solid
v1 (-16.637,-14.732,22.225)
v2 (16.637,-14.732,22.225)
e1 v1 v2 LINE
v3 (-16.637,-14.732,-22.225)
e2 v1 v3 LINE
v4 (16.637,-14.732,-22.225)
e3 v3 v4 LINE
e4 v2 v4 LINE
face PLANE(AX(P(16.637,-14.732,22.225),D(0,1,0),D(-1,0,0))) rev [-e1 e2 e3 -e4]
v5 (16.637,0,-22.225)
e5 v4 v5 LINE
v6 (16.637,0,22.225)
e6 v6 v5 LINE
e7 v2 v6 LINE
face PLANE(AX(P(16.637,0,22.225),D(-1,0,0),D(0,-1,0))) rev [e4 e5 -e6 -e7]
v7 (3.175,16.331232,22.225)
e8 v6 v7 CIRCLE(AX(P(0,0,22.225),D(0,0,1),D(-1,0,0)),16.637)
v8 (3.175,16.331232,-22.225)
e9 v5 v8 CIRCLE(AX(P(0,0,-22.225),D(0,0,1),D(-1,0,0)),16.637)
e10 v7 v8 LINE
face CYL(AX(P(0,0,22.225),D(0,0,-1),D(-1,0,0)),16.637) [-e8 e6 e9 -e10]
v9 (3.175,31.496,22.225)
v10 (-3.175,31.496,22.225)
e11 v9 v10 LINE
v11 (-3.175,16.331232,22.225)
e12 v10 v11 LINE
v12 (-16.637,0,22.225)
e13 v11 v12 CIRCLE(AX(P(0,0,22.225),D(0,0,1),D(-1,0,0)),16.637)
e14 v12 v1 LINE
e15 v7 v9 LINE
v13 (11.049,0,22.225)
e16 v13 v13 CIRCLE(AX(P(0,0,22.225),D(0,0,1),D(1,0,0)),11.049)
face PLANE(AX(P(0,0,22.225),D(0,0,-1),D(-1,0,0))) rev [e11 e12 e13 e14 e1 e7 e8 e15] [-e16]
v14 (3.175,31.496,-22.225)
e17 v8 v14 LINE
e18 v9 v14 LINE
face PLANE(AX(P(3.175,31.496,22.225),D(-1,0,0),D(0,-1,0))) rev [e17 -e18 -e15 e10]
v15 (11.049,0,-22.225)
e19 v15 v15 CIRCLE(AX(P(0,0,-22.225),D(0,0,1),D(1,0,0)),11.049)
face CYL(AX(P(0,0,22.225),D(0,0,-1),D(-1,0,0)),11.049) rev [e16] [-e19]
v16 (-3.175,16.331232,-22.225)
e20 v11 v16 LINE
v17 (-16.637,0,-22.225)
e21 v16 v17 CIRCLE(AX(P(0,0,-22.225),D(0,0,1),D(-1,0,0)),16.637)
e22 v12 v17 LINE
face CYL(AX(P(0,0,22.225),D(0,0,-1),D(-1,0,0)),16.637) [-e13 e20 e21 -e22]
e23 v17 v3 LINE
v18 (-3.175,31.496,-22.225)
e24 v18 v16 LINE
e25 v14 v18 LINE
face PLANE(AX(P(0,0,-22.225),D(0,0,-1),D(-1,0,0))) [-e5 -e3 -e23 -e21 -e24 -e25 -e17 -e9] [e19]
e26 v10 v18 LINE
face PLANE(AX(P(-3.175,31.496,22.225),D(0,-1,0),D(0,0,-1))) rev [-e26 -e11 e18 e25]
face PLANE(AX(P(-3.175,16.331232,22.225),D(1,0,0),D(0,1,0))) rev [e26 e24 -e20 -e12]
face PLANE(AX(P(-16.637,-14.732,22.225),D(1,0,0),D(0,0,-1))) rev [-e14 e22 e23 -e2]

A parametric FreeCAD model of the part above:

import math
import FreeCAD as App
import Part
import Sketcher
Q = App.Units.Quantity

doc = App.newDocument("Part")
body = doc.addObject("PartDesign::Body", "Body")

sketch1 = body.newObject("Sketcher::SketchObject", "Sketch")
sketch1.AttachmentSupport = (doc.getObject("XY_Plane"), [""])
sketch1.MapMode = "FlatFace"
sketch1.addGeometry(Part.LineSegment(App.Vector(-17, -15, 0), App.Vector(17, -15, 0)), False)
sketch1.addGeometry(Part.LineSegment(App.Vector(17, -15, 0), App.Vector(17, 0, 0)), False)
sketch1.addGeometry(Part.ArcOfCircle(Part.Circle(App.Vector(0, 0, 0), App.Vector(0, 0, 1), 17), math.radians(0), math.radians(79)), False)
sketch1.addGeometry(Part.LineSegment(App.Vector(3, 16, 0), App.Vector(3, 31, 0)), False)
sketch1.addGeometry(Part.LineSegment(App.Vector(3, 31, 0), App.Vector(-3, 31, 0)), False)
sketch1.addGeometry(Part.LineSegment(App.Vector(-3, 31, 0), App.Vector(-3, 16, 0)), False)
sketch1.addGeometry(Part.ArcOfCircle(Part.Circle(App.Vector(0, 0, 0), App.Vector(0, 0, 1), 17), math.radians(101), math.radians(180)), False)
sketch1.addGeometry(Part.LineSegment(App.Vector(-17, 0, 0), App.Vector(-17, -15, 0)), False)
sketch1.addGeometry(Part.Circle(App.Vector(0, 0, 0), App.Vector(0, 0, 1), 11), False)
sketch1.addConstraint(Sketcher.Constraint("Coincident", 0, 2, 1, 1))
sketch1.addConstraint(Sketcher.Constraint("Tangent", 1, 2, 2, 1))
sketch1.addConstraint(Sketcher.Constraint("Coincident", 2, 2, 3, 1))
sketch1.addConstraint(Sketcher.Constraint("Coincident", 3, 2, 4, 1))
sketch1.addConstraint(Sketcher.Constraint("Coincident", 4, 2, 5, 1))
sketch1.addConstraint(Sketcher.Constraint("Coincident", 5, 2, 6, 1))
sketch1.addConstraint(Sketcher.Constraint("Tangent", 6, 2, 7, 1))
sketch1.addConstraint(Sketcher.Constraint("Coincident", 7, 2, 0, 1))
sketch1.addConstraint(Sketcher.Constraint("Horizontal", 0))
sketch1.addConstraint(Sketcher.Constraint("Vertical", 1))
sketch1.addConstraint(Sketcher.Constraint("Vertical", 3))
sketch1.addConstraint(Sketcher.Constraint("Horizontal", 4))
sketch1.addConstraint(Sketcher.Constraint("Vertical", 5))
sketch1.addConstraint(Sketcher.Constraint("Vertical", 7))
sketch1.addConstraint(Sketcher.Constraint("Coincident", 2, 3, -1, 1))
sketch1.addConstraint(Sketcher.Constraint("Coincident", 6, 3, -1, 1))
sketch1.addConstraint(Sketcher.Constraint("Coincident", 8, 3, -1, 1))
sketch1.addConstraint(Sketcher.Constraint("Equal", 2, 6))
sketch1.addConstraint(Sketcher.Constraint("Horizontal", 2, 2, 5, 2))
sketch1.addConstraint(Sketcher.Constraint("Diameter", 8, Q("0.87 in")))
sketch1.addConstraint(Sketcher.Constraint("Radius", 2, Q("0.655 in")))
sketch1.addConstraint(Sketcher.Constraint("DistanceX", 4, 2, 4, 1, Q("0.25 in")))
sketch1.addConstraint(Sketcher.Constraint("DistanceY", 1, 1, 1, 2, Q("0.58 in")))
sketch1.addConstraint(Sketcher.Constraint("DistanceY", -1, 1, 3, 2, Q("1.24 in")))
pad1 = body.newObject("PartDesign::Pad", "Pad")
pad1.Profile = sketch1
pad1.Length = Q("1.75 in")
pad1.Midplane = True

doc.recompute()
